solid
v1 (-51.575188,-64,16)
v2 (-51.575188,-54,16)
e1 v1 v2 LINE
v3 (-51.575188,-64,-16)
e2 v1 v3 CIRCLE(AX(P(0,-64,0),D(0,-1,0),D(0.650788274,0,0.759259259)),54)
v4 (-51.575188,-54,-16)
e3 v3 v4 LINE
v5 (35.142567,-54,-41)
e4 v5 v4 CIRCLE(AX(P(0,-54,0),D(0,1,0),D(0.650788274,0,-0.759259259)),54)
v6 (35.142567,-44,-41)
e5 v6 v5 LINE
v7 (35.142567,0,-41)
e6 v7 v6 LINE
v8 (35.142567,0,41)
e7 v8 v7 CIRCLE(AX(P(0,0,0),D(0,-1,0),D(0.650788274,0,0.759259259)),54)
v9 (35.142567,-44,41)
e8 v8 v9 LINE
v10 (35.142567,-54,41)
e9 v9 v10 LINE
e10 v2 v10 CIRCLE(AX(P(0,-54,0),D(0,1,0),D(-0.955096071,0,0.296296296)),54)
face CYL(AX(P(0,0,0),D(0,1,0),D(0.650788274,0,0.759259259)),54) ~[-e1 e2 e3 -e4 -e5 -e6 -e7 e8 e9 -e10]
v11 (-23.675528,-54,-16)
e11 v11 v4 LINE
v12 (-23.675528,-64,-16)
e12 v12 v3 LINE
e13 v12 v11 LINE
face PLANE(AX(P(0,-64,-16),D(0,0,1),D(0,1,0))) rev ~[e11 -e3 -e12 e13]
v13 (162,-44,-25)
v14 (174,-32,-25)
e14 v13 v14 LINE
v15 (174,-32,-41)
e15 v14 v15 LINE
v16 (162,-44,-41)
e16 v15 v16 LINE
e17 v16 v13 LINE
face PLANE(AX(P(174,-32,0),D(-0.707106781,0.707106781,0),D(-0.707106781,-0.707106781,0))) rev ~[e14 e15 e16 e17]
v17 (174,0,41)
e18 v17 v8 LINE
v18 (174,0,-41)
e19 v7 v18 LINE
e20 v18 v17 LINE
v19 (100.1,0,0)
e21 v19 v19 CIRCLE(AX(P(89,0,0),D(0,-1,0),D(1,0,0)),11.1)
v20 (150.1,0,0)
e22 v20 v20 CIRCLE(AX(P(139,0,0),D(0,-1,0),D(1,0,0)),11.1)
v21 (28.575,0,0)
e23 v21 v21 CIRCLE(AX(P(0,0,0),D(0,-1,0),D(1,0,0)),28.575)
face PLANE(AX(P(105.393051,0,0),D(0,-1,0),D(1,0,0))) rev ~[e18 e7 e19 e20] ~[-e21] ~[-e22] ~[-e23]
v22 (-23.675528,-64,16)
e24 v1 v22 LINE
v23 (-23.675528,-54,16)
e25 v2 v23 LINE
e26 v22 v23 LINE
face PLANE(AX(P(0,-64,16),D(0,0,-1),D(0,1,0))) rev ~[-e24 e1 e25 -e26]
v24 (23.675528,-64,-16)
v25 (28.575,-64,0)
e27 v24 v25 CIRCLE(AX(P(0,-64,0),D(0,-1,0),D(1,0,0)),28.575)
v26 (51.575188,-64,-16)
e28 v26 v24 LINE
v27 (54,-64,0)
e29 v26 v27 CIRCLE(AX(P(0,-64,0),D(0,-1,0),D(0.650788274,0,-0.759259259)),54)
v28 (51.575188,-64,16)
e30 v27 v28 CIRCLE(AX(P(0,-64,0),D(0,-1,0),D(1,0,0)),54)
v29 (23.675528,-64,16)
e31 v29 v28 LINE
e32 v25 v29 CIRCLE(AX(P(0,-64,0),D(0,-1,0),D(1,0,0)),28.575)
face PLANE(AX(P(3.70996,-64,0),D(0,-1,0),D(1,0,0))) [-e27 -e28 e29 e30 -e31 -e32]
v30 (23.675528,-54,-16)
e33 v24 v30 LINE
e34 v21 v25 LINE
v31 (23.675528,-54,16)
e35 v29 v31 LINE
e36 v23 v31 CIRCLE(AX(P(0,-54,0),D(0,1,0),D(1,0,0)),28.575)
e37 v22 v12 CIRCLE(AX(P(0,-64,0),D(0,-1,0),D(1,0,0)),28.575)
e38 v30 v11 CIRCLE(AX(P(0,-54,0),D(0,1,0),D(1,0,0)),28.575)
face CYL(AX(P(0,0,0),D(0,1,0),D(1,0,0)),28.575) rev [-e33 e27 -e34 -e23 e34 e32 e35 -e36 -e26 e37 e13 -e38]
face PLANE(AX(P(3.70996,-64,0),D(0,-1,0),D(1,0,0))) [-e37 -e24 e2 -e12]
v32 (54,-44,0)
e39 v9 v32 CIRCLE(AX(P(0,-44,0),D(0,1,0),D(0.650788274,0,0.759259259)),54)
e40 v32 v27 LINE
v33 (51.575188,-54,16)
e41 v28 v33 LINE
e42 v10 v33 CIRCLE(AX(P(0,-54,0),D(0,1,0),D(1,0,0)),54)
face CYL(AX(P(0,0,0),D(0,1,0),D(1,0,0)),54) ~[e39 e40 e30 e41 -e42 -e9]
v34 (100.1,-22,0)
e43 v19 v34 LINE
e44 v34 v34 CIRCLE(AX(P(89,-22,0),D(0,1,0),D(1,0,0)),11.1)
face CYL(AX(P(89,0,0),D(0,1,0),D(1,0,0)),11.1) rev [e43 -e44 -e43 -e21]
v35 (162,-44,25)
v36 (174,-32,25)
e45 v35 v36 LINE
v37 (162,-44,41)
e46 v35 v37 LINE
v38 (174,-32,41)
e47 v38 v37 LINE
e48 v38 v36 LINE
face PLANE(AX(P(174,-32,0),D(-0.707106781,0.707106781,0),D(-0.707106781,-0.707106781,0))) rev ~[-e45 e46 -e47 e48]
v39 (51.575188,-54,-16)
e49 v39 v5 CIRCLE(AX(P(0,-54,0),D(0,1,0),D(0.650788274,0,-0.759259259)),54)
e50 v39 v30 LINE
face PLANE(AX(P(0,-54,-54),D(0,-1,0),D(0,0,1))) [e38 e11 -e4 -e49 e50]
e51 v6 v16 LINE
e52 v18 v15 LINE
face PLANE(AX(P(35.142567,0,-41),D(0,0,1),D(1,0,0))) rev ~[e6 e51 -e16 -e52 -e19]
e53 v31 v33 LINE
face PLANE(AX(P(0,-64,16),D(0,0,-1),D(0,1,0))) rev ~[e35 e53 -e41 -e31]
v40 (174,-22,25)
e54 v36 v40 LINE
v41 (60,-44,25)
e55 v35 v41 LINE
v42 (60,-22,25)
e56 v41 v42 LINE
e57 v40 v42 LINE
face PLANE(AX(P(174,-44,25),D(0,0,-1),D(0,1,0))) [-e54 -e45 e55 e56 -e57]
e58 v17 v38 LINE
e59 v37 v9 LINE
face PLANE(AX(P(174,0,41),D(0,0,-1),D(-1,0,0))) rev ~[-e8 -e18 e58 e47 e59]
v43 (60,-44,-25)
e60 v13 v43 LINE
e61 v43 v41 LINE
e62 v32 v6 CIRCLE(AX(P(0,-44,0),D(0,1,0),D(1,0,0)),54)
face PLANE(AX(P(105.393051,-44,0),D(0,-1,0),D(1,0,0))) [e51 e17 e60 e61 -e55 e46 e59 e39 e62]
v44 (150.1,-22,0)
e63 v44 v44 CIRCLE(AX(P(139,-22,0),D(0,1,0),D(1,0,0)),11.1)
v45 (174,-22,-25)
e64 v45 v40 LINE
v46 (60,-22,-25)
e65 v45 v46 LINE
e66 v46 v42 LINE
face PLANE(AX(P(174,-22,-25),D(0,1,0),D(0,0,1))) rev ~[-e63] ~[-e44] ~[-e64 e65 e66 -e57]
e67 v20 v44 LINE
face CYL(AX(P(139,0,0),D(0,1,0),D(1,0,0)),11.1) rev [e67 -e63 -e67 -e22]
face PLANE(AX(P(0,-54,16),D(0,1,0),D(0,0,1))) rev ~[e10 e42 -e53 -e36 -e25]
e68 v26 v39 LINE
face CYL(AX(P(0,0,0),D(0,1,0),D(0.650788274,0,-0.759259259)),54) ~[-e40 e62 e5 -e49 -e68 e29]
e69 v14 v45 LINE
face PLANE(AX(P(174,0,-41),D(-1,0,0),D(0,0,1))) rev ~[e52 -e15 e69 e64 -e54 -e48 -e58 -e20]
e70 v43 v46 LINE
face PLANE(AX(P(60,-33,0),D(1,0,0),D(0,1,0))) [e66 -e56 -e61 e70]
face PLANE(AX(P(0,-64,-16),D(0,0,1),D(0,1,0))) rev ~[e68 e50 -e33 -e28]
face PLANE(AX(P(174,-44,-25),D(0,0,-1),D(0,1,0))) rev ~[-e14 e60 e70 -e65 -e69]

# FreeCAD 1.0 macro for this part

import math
import FreeCAD as App
import Part
import Sketcher
from FreeCAD import Vector

doc = App.newDocument("Part")
body = doc.addObject("PartDesign::Body", "Body")

sketch1 = body.newObject("Sketcher::SketchObject", "Sketch")
sketch1.AttachmentSupport = (doc.getObject("XZ_Plane"), [""])
sketch1.MapMode = "FlatFace"
sketch1.addGeometry(Part.ArcOfCircle(Part.Circle(Vector(0, 0, 0), Vector(0, 0, 1), 54), math.radians(-49), math.radians(0)), False)
sketch1.addGeometry(Part.ArcOfCircle(Part.Circle(Vector(0, 0, 0), Vector(0, 0, 1), 54), math.radians(0), math.radians(49)), False)
sketch1.addGeometry(Part.ArcOfCircle(Part.Circle(Vector(0, 0, 0), Vector(0, 0, 1), 54), math.radians(49), math.radians(311)), False)
sketch1.addGeometry(Part.Circle(Vector(0, 0, 0), Vector(0, 0, 1), 29), False)
sketch1.addConstraint(Sketcher.Constraint("Tangent", 0, 2, 1, 1))
sketch1.addConstraint(Sketcher.Constraint("Tangent", 1, 2, 2, 1))
sketch1.addConstraint(Sketcher.Constraint("Tangent", 2, 2, 0, 1))
sketch1.addConstraint(Sketcher.Constraint("Coincident", 0, 3, -1, 1))
sketch1.addConstraint(Sketcher.Constraint("Coincident", 3, 3, -1, 1))
sketch1.addConstraint(Sketcher.Constraint("PointOnObject", 0, 2, -1))
sketch1.addConstraint(Sketcher.Constraint("Vertical", 1, 2, 2, 2))
sketch1.addConstraint(Sketcher.Constraint("Radius", 0, 54.0))
sketch1.addConstraint(Sketcher.Constraint("Diameter", 3, 57.15))
sketch1.addConstraint(Sketcher.Constraint("DistanceY", -1, 1, 1, 2, 41.0))
pad1 = body.newObject("PartDesign::Pad", "Pad")
pad1.Profile = sketch1
pad1.Length = 64

sketch2 = body.newObject("Sketcher::SketchObject", "Sketch001")
sketch2.AttachmentSupport = (doc.getObject("XZ_Plane"), [""])
sketch2.MapMode = "FlatFace"
sketch2.addGeometry(Part.ArcOfCircle(Part.Circle(Vector(0, 0, 0), Vector(0, 0, 1), 54), math.radians(0), math.radians(49)), False)
sketch2.addGeometry(Part.ArcOfCircle(Part.Circle(Vector(0, 0, 0), Vector(0, 0, 1), 54), math.radians(-49), math.radians(0)), False)
sketch2.addGeometry(Part.LineSegment(Vector(35, -41, 0), Vector(174, -41, 0)), False)
sketch2.addGeometry(Part.LineSegment(Vector(174, -41, 0), Vector(174, 41, 0)), False)
sketch2.addGeometry(Part.LineSegment(Vector(174, 41, 0), Vector(35, 41, 0)), False)
sketch2.addGeometry(Part.Circle(Vector(89, 0, 0), Vector(0, 0, 1), 11), False)
sketch2.addGeometry(Part.Circle(Vector(139, 0, 0), Vector(0, 0, 1), 11), False)
sketch2.addConstraint(Sketcher.Constraint("Tangent", 0, 1, 1, 2))
sketch2.addConstraint(Sketcher.Constraint("Coincident", 1, 1, 2, 1))
sketch2.addConstraint(Sketcher.Constraint("Coincident", 2, 2, 3, 1))
sketch2.addConstraint(Sketcher.Constraint("Coincident", 3, 2, 4, 1))
sketch2.addConstraint(Sketcher.Constraint("Coincident", 4, 2, 0, 2))
sketch2.addConstraint(Sketcher.Constraint("Horizontal", 2))
sketch2.addConstraint(Sketcher.Constraint("Vertical", 3))
sketch2.addConstraint(Sketcher.Constraint("Horizontal", 4))
sketch2.addConstraint(Sketcher.Constraint("Coincident", 0, 3, -1, 1))
sketch2.addConstraint(Sketcher.Constraint("Equal", 0, 1))
sketch2.addConstraint(Sketcher.Constraint("Equal", 5, 6))
sketch2.addConstraint(Sketcher.Constraint("PointOnObject", 5, 3, -1))
sketch2.addConstraint(Sketcher.Constraint("PointOnObject", 6, 3, -1))
sketch2.addConstraint(Sketcher.Constraint("PointOnObject", 0, 1, -1))
sketch2.addConstraint(Sketcher.Constraint("Vertical", 1, 1, 4, 2))
sketch2.addConstraint(Sketcher.Constraint("Radius", 0, 54.0))
sketch2.addConstraint(Sketcher.Constraint("Diameter", 5, 22.2))
sketch2.addConstraint(Sketcher.Constraint("DistanceY", 3, 1, 3, 2, 82.0))
sketch2.addConstraint(Sketcher.Constraint("DistanceX", -1, 1, 5, 3, 89.0))
sketch2.addConstraint(Sketcher.Constraint("DistanceX", -1, 1, 6, 3, 139.0))
sketch2.addConstraint(Sketcher.Constraint("DistanceX", -1, 1, 2, 2, 174.0))
pad2 = body.newObject("PartDesign::Pad", "Pad001")
pad2.Profile = sketch2
pad2.Length = 44

sketch3 = body.newObject("Sketcher::SketchObject", "Sketch002")
sketch3.AttachmentSupport = (doc.getObject("YZ_Plane"), [""])
sketch3.MapMode = "FlatFace"
sketch3.addGeometry(Part.LineSegment(Vector(-64, -16, 0), Vector(-64, -54, 0)), False)
sketch3.addGeometry(Part.LineSegment(Vector(-64, -54, 0), Vector(-54, -54, 0)), False)
sketch3.addGeometry(Part.LineSegment(Vector(-54, -54, 0), Vector(-54, -16, 0)), False)
sketch3.addGeometry(Part.LineSegment(Vector(-54, -16, 0), Vector(-64, -16, 0)), False)
sketch3.addGeometry(Part.LineSegment(Vector(-64, 54, 0), Vector(-64, 16, 0)), False)
sketch3.addGeometry(Part.LineSegment(Vector(-64, 16, 0), Vector(-54, 16, 0)), False)
sketch3.addGeometry(Part.LineSegment(Vector(-54, 16, 0), Vector(-54, 54, 0)), False)
sketch3.addGeometry(Part.LineSegment(Vector(-54, 54, 0), Vector(-64, 54, 0)), False)
sketch3.addConstraint(Sketcher.Constraint("Coincident", 0, 2, 1, 1))
sketch3.addConstraint(Sketcher.Constraint("Coincident", 1, 2, 2, 1))
sketch3.addConstraint(Sketcher.Constraint("Coincident", 2, 2, 3, 1))
sketch3.addConstraint(Sketcher.Constraint("Coincident", 3, 2, 0, 1))
sketch3.addConstraint(Sketcher.Constraint("Coincident", 4, 2, 5, 1))
sketch3.addConstraint(Sketcher.Constraint("Coincident", 5, 2, 6, 1))
sketch3.addConstraint(Sketcher.Constraint("Coincident", 6, 2, 7, 1))
sketch3.addConstraint(Sketcher.Constraint("Coincident", 7, 2, 4, 1))
sketch3.addConstraint(Sketcher.Constraint("Vertical", 0))
sketch3.addConstraint(Sketcher.Constraint("Horizontal", 1))
sketch3.addConstraint(Sketcher.Constraint("Vertical", 2))
sketch3.addConstraint(Sketcher.Constraint("Horizontal", 3))
sketch3.addConstraint(Sketcher.Constraint("Vertical", 4))
sketch3.addConstraint(Sketcher.Constraint("Horizontal", 5))
sketch3.addConstraint(Sketcher.Constraint("Vertical", 6))
sketch3.addConstraint(Sketcher.Constraint("Horizontal", 7))
sketch3.addConstraint(Sketcher.Constraint("Symmetric", 3, 2, 4, 2, -1))
sketch3.addConstraint(Sketcher.Constraint("Symmetric", 1, 2, 6, 2, -1))
sketch3.addConstraint(Sketcher.Constraint("DistanceX", 1, 1, 1, 2, 10.0))
sketch3.addConstraint(Sketcher.Constraint("DistanceY", 0, 2, 0, 1, 38.0))
sketch3.addConstraint(Sketcher.Constraint("DistanceX", 0, 2, -1, 1, 64.0))
sketch3.addConstraint(Sketcher.Constraint("DistanceY", 0, 2, -1, 1, 54.0))
pocket1 = body.newObject("PartDesign::Pocket", "Pocket")
pocket1.Profile = sketch3
pocket1.Length = 108
pocket1.Midplane = True

sketch4 = body.newObject("Sketcher::SketchObject", "Sketch003")
sketch4.AttachmentSupport = (doc.getObject("YZ_Plane"), [""])
sketch4.MapMode = "FlatFace"
sketch4.AttachmentOffset = App.Placement(Vector(0, 0, 174), App.Rotation())
sketch4.addGeometry(Part.LineSegment(Vector(-44, 25, 0), Vector(-44, -25, 0)), False)
sketch4.addGeometry(Part.LineSegment(Vector(-44, -25, 0), Vector(-22, -25, 0)), False)
sketch4.addGeometry(Part.LineSegment(Vector(-22, -25, 0), Vector(-22, 25, 0)), False)
sketch4.addGeometry(Part.LineSegment(Vector(-22, 25, 0), Vector(-44, 25, 0)), False)
sketch4.addConstraint(Sketcher.Constraint("Coincident", 0, 2, 1, 1))
sketch4.addConstraint(Sketcher.Constraint("Coincident", 1, 2, 2, 1))
sketch4.addConstraint(Sketcher.Constraint("Coincident", 2, 2, 3, 1))
sketch4.addConstraint(Sketcher.Constraint("Coincident", 3, 2, 0, 1))
sketch4.addConstraint(Sketcher.Constraint("Vertical", 0))
sketch4.addConstraint(Sketcher.Constraint("Horizontal", 1))
sketch4.addConstraint(Sketcher.Constraint("Vertical", 2))
sketch4.addConstraint(Sketcher.Constraint("Horizontal", 3))
sketch4.addConstraint(Sketcher.Constraint("DistanceX", 1, 1, 1, 2, 22.0))
sketch4.addConstraint(Sketcher.Constraint("DistanceY", 0, 2, 0, 1, 50.0))
sketch4.addConstraint(Sketcher.Constraint("DistanceX", 0, 2, -1, 1, 44.0))
sketch4.addConstraint(Sketcher.Constraint("DistanceY", 0, 2, -1, 1, 25.0))
pocket2 = body.newObject("PartDesign::Pocket", "Pocket001")
pocket2.Profile = sketch4
pocket2.Length = 114

sketch5 = body.newObject("Sketcher::SketchObject", "Sketch004")
sketch5.AttachmentSupport = (doc.getObject("XY_Plane"), [""])
sketch5.MapMode = "FlatFace"
sketch5.addGeometry(Part.LineSegment(Vector(174, -32, 0), Vector(162, -44, 0)), False)
sketch5.addGeometry(Part.LineSegment(Vector(162, -44, 0), Vector(174, -44, 0)), False)
sketch5.addGeometry(Part.LineSegment(Vector(174, -44, 0), Vector(174, -32, 0)), False)
sketch5.addConstraint(Sketcher.Constraint("Coincident", 0, 2, 1, 1))
sketch5.addConstraint(Sketcher.Constraint("Coincident", 1, 2, 2, 1))
sketch5.addConstraint(Sketcher.Constraint("Coincident", 2, 2, 0, 1))
sketch5.addConstraint(Sketcher.Constraint("Horizontal", 1))
sketch5.addConstraint(Sketcher.Constraint("Vertical", 2))
sketch5.addConstraint(Sketcher.Constraint("Equal", 1, 2))
sketch5.addConstraint(Sketcher.Constraint("DistanceX", 1, 1, 1, 2, 12.0))
sketch5.addConstraint(Sketcher.Constraint("DistanceX", -1, 1, 0, 2, 162.0))
sketch5.addConstraint(Sketcher.Constraint("DistanceY", 0, 2, -1, 1, 44.0))
pocket3 = body.newObject("PartDesign::Pocket", "Pocket002")
pocket3.Profile = sketch5
pocket3.Length = 82
pocket3.Midplane = True

doc.recompute()
